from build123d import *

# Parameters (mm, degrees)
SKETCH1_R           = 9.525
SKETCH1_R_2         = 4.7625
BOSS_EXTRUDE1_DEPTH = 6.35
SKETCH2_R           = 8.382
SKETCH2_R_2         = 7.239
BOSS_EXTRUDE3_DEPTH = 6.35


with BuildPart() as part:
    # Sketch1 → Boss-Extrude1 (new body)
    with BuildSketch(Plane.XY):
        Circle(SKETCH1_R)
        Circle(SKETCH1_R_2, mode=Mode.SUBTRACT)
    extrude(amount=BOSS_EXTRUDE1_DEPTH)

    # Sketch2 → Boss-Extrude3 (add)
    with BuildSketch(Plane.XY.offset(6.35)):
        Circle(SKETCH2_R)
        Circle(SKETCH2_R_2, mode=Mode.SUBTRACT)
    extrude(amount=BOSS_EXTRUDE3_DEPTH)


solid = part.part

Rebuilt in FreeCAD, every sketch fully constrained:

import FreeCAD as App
import Part
import Sketcher
Q = App.Units.Quantity

doc = App.newDocument("Part")
body = doc.addObject("PartDesign::Body", "Body")

sketch1 = body.newObject("Sketcher::SketchObject", "Sketch")
sketch1.AttachmentSupport = (doc.getObject("XY_Plane"), [""])
sketch1.MapMode = "FlatFace"
sketch1.addGeometry(Part.Circle(App.Vector(0, 0, 0), App.Vector(0, 0, 1), 9.5), False)
sketch1.addGeometry(Part.Circle(App.Vector(0, 0, 0), App.Vector(0, 0, 1), 4.8), False)
sketch1.addConstraint(Sketcher.Constraint("Coincident", 0, 3, -1, 1))
sketch1.addConstraint(Sketcher.Constraint("Coincident", 1, 3, -1, 1))
sketch1.addConstraint(Sketcher.Constraint("Diameter", 0, Q("0.75 in")))
sketch1.addConstraint(Sketcher.Constraint("Diameter", 1, Q("0.375 in")))
pad1 = body.newObject("PartDesign::Pad", "Pad")
pad1.Profile = sketch1
pad1.Length = Q("0.25 in")

sketch2 = body.newObject("Sketcher::SketchObject", "Sketch001")
sketch2.AttachmentSupport = (doc.getObject("XY_Plane"), [""])
sketch2.MapMode = "FlatFace"
sketch2.AttachmentOffset = App.Placement(App.Vector(0, 0, 0.25 * 25.4), App.Rotation())
sketch2.addGeometry(Part.Circle(App.Vector(0, 0, 0), App.Vector(0, 0, 1), 8), False)
sketch2.addGeometry(Part.Circle(App.Vector(0, 0, 0), App.Vector(0, 0, 1), 7), False)
sketch2.addConstraint(Sketcher.Constraint("Coincident", 0, 3, -1, 1))
sketch2.addConstraint(Sketcher.Constraint("Coincident", 1, 3, -1, 1))
sketch2.addConstraint(Sketcher.Constraint("Diameter", 0, Q("0.66 in")))
sketch2.addConstraint(Sketcher.Constraint("Diameter", 1, Q("0.57 in")))
pad2 = body.newObject("PartDesign::Pad", "Pad001")
pad2.Profile = sketch2
pad2.Length = Q("0.25 in")

doc.recompute()
